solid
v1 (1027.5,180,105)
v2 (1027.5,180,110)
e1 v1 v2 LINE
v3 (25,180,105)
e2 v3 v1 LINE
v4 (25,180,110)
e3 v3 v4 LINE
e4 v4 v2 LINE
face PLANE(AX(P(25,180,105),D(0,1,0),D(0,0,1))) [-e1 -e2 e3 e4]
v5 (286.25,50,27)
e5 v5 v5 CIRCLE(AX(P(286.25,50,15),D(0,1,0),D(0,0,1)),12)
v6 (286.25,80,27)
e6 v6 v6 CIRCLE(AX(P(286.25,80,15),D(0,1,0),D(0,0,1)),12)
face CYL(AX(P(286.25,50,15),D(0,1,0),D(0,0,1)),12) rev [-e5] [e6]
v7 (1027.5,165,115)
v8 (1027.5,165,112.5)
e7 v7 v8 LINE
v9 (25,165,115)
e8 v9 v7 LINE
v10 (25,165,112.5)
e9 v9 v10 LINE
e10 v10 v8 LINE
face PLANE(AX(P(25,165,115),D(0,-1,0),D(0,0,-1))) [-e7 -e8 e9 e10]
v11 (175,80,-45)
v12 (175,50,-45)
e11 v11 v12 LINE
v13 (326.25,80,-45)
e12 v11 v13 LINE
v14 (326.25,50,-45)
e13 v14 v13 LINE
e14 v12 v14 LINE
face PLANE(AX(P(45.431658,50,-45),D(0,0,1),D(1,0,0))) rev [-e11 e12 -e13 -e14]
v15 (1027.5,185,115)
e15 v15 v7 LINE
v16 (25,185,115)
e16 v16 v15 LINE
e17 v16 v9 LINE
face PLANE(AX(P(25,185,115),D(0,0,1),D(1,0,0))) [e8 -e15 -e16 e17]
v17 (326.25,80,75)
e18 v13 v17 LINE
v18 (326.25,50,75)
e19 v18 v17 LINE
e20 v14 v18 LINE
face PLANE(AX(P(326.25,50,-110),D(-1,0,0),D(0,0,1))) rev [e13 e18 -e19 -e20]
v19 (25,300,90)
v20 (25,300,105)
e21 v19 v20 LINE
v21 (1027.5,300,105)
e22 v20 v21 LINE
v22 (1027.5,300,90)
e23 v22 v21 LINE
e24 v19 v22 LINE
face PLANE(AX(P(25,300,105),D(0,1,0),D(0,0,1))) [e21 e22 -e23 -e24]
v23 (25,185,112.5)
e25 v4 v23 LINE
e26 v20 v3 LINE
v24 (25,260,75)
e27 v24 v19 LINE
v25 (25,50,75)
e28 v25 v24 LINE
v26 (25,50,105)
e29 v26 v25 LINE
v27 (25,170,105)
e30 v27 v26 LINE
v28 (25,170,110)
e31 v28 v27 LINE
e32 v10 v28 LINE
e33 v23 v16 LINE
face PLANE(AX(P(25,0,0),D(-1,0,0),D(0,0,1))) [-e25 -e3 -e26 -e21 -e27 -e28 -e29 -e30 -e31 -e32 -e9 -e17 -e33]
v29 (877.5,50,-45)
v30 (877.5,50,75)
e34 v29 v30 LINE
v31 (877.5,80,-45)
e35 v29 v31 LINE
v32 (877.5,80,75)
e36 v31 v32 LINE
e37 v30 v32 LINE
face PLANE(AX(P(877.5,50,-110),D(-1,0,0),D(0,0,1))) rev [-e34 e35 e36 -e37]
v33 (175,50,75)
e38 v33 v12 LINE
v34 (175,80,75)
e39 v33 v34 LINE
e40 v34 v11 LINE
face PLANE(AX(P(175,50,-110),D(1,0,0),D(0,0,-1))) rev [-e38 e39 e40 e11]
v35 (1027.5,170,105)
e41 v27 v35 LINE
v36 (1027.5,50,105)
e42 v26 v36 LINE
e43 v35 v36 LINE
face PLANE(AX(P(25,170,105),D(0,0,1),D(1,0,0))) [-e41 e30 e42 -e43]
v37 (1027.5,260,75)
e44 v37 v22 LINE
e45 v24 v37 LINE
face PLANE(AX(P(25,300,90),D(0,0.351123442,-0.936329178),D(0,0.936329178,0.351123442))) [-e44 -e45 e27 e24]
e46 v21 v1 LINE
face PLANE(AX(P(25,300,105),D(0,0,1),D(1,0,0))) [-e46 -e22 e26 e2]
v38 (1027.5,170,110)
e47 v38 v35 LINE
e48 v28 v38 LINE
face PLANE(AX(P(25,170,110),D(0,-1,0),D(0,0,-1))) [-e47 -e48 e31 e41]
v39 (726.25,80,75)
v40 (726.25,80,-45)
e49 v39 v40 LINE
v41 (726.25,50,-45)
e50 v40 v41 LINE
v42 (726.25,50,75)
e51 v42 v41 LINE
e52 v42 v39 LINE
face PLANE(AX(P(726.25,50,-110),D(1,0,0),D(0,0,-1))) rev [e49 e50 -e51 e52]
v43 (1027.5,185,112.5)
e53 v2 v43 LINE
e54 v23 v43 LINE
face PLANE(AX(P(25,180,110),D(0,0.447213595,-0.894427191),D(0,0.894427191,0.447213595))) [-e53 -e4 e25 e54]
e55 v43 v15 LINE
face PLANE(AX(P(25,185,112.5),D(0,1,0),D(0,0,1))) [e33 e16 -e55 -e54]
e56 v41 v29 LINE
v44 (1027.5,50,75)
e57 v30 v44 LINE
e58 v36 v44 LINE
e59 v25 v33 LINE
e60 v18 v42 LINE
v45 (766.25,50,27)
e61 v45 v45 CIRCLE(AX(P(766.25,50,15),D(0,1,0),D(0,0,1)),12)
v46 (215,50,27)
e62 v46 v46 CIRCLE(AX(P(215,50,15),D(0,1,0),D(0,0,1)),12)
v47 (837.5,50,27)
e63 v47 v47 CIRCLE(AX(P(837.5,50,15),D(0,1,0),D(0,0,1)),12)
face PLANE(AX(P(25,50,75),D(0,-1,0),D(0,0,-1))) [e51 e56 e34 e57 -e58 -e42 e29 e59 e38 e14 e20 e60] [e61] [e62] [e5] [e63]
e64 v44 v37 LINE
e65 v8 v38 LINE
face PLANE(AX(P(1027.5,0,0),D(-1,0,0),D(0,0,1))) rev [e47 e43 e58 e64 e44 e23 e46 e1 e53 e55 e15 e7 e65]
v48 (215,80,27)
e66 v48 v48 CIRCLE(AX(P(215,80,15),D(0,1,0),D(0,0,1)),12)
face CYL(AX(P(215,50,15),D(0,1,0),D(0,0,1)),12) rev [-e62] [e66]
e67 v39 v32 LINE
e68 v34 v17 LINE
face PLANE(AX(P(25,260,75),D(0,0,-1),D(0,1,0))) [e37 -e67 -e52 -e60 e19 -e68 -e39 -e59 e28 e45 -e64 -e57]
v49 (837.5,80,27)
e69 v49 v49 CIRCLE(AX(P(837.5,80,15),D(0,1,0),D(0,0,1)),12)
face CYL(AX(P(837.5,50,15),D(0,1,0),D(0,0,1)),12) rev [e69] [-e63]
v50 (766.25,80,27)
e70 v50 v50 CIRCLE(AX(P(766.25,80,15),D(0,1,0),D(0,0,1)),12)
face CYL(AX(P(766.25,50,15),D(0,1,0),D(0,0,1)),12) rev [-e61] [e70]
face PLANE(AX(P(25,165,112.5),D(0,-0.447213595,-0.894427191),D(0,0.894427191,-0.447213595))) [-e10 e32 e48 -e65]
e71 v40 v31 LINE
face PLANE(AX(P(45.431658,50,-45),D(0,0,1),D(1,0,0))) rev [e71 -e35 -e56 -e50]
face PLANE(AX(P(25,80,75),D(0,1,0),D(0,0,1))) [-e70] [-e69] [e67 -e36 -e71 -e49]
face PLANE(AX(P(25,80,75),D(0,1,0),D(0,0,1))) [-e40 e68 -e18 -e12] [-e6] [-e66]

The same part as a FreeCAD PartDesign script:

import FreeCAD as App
import Part
import Sketcher


def add_polygon(sketch, points):
    """Adds a closed chain of lines whose ends are joined by coincident constraints."""
    first, n = sketch.GeometryCount, len(points)
    for a, b in zip(points, points[1:] + points[:1]):
        sketch.addGeometry(Part.LineSegment(App.Vector(*a, 0), App.Vector(*b, 0)), False)
    for i in range(n):
        sketch.addConstraint(Sketcher.Constraint("Coincident", first + i, 2, first + (i + 1) % n, 1))

doc = App.newDocument("Part")
body = doc.addObject("PartDesign::Body", "Body")

sketch1 = body.newObject("Sketcher::SketchObject", "Sketch")
sketch1.AttachmentSupport = (doc.getObject("YZ_Plane"), [""])
sketch1.MapMode = "FlatFace"
sketch1.AttachmentOffset = App.Placement(App.Vector(0, 0, 1027.5), App.Rotation())
add_polygon(sketch1, [(300, 105), (180, 105), (180, 110), (185, 112.5), (185, 115), (165, 115), (165, 112.5), (170, 110), (170, 105), (50, 105), (50, -110), (80, -110), (80, 75), (260, 75), (300, 90)])
sketch1.addConstraint([
    Sketcher.Constraint("Horizontal", 0),
    Sketcher.Constraint("Vertical", 1),
    Sketcher.Constraint("Vertical", 3),
    Sketcher.Constraint("Horizontal", 4),
    Sketcher.Constraint("Vertical", 5),
    Sketcher.Constraint("Vertical", 7),
    Sketcher.Constraint("Horizontal", 8),
    Sketcher.Constraint("Vertical", 9),
    Sketcher.Constraint("Horizontal", 10),
    Sketcher.Constraint("Vertical", 11),
    Sketcher.Constraint("Horizontal", 12),
    Sketcher.Constraint("Vertical", 14),
    Sketcher.Constraint("Horizontal", 2, 2, 5, 2),
    Sketcher.Constraint("Horizontal", 1, 2, 6, 2),
    Sketcher.Constraint("Horizontal", 0, 2, 7, 2),
    Sketcher.Constraint("Equal", 0, 8),
    Sketcher.Constraint("Equal", 2, 6),
    Sketcher.Constraint("DistanceX", 0, 2, 0, 1, 120.0),
    Sketcher.Constraint("DistanceX", 4, 2, 4, 1, 20.0),
    Sketcher.Constraint("DistanceX", 10, 1, 10, 2, 30.0),
    Sketcher.Constraint("DistanceX", 12, 1, 12, 2, 180.0),
    Sketcher.Constraint("DistanceY", 1, 1, 1, 2, 5.0),
    Sketcher.Constraint("DistanceY", 9, 2, 9, 1, 215.0),
    Sketcher.Constraint("DistanceY", 11, 1, 11, 2, 185.0),
    Sketcher.Constraint("DistanceY", 14, 1, 14, 2, 15.0),
    Sketcher.Constraint("DistanceY", 3, 1, 3, 2, 2.5),
    Sketcher.Constraint("DistanceX", -1, 1, 0, 2, 180.0),
    Sketcher.Constraint("DistanceY", -1, 1, 0, 2, 105.0),
    Sketcher.Constraint("DistanceX", -1, 1, 2, 2, 185.0),
    Sketcher.Constraint("DistanceY", -1, 1, 3, 2, 115.0),
])
pad1 = body.newObject("PartDesign::Pad", "Pad")
pad1.Profile = sketch1
pad1.Length = 1002.5
pad1.Reversed = True

sketch2 = body.newObject("Sketcher::SketchObject", "Sketch001")
sketch2.AttachmentSupport = (doc.getObject("XZ_Plane"), [""])
sketch2.MapMode = "FlatFace"
sketch2.AttachmentOffset = App.Placement(App.Vector(0, 0, -80), App.Rotation())
add_polygon(sketch2, [(326.25, -110), (326.25, 75), (726.25, 75), (726.25, -110)])
sketch2.addConstraint([
    Sketcher.Constraint("Vertical", 0),
    Sketcher.Constraint("Horizontal", 1),
    Sketcher.Constraint("Vertical", 2),
    Sketcher.Constraint("Horizontal", 3),
    Sketcher.Constraint("DistanceX", 1, 1, 1, 2, 400.0),
    Sketcher.Constraint("DistanceY", 0, 1, 0, 2, 185.0),
    Sketcher.Constraint("DistanceY", -1, 1, 0, 2, 75.0),
    Sketcher.Constraint("DistanceX", -1, 1, 0, 2, 326.25),
])
pocket1 = body.newObject("PartDesign::Pocket", "Pocket")
pocket1.Profile = sketch2
pocket1.Type = "ThroughAll"
pocket1.Midplane = True

sketch3 = body.newObject("Sketcher::SketchObject", "Sketch002")
sketch3.AttachmentSupport = (doc.getObject("XZ_Plane"), [""])
sketch3.MapMode = "FlatFace"
sketch3.AttachmentOffset = App.Placement(App.Vector(0, 0, -80), App.Rotation())
add_polygon(sketch3, [(25, -110), (25, 75), (175, 75), (175, -110)])
add_polygon(sketch3, [(877.5, -110), (877.5, 75), (1027.5, 75), (1027.5, -110)])
sketch3.addConstraint([
    Sketcher.Constraint("Vertical", 0),
    Sketcher.Constraint("Horizontal", 1),
    Sketcher.Constraint("Vertical", 2),
    Sketcher.Constraint("Horizontal", 3),
    Sketcher.Constraint("Vertical", 4),
    Sketcher.Constraint("Horizontal", 5),
    Sketcher.Constraint("Vertical", 6),
    Sketcher.Constraint("Horizontal", 7),
    Sketcher.Constraint("Horizontal", 1, 2, 4, 2),
    Sketcher.Constraint("Horizontal", 3, 2, 6, 2),
    Sketcher.Constraint("Equal", 3, 5),
    Sketcher.Constraint("DistanceX", 1, 1, 1, 2, 150.0),
    Sketcher.Constraint("DistanceY", 0, 1, 0, 2, 185.0),
    Sketcher.Constraint("DistanceX", -1, 1, 0, 2, 25.0),
    Sketcher.Constraint("DistanceY", -1, 1, 0, 2, 75.0),
    Sketcher.Constraint("DistanceX", -1, 1, 4, 2, 877.5),
])
pocket2 = body.newObject("PartDesign::Pocket", "Pocket001")
pocket2.Profile = sketch3
pocket2.Type = "ThroughAll"
pocket2.Midplane = True

sketch4 = body.newObject("Sketcher::SketchObject", "Sketch003")
sketch4.AttachmentSupport = (doc.getObject("XZ_Plane"), [""])
sketch4.MapMode = "FlatFace"
sketch4.AttachmentOffset = App.Placement(App.Vector(0, 0, -80), App.Rotation())
add_polygon(sketch4, [(45.431658, -225.779532), (45.431658, -45), (976.887174, -45), (976.887174, -225.779532)])
sketch4.addConstraint([
    Sketcher.Constraint("Vertical", 0),
    Sketcher.Constraint("Horizontal", 1),
    Sketcher.Constraint("Vertical", 2),
    Sketcher.Constraint("Horizontal", 3),
    Sketcher.Constraint("DistanceY", 0, 2, -1, 1, 45.0),
    Sketcher.Constraint("DistanceX", 1, 1, 1, 2, 931.455516),
    Sketcher.Constraint("DistanceY", 0, 1, 0, 2, 180.779532),
    Sketcher.Constraint("DistanceX", -1, 1, 0, 2, 45.431658),
])
pocket3 = body.newObject("PartDesign::Pocket", "Pocket002")
pocket3.Profile = sketch4
pocket3.Type = "ThroughAll"
pocket3.Midplane = True

sketch5 = body.newObject("Sketcher::SketchObject", "Sketch004")
sketch5.AttachmentSupport = (doc.getObject("XZ_Plane"), [""])
sketch5.MapMode = "FlatFace"
sketch5.AttachmentOffset = App.Placement(App.Vector(0, 0, -80), App.Rotation())
sketch5.addGeometry([
    Part.Circle(App.Vector(215, 15, 0), App.Vector(0, 0, 1), 12),
    Part.Circle(App.Vector(286.25, 15, 0), App.Vector(0, 0, 1), 12),
    Part.Circle(App.Vector(766.25, 15, 0), App.Vector(0, 0, 1), 12),
    Part.Circle(App.Vector(837.5, 15, 0), App.Vector(0, 0, 1), 12),
], False)
sketch5.addConstraint([
    Sketcher.Constraint("Equal", 0, 1),
    Sketcher.Constraint("Equal", 1, 2),
    Sketcher.Constraint("Equal", 2, 3),
    Sketcher.Constraint("Horizontal", 0, 3, 1, 3),
    Sketcher.Constraint("Horizontal", 1, 3, 2, 3),
    Sketcher.Constraint("Horizontal", 2, 3, 3, 3),
    Sketcher.Constraint("Diameter", 0, 24.0),
    Sketcher.Constraint("DistanceX", -1, 1, 0, 3, 215.0),
    Sketcher.Constraint("DistanceY", -1, 1, 0, 3, 15.0),
    Sketcher.Constraint("DistanceX", 1, 3, 2, 3, 480.0),
    Sketcher.Constraint("DistanceX", -1, 1, 3, 3, 837.5),
    Sketcher.Constraint("DistanceX", -1, 1, 1, 3, 286.25),
])
pocket4 = body.newObject("PartDesign::Pocket", "Pocket003")
pocket4.Profile = sketch5
pocket4.Type = "ThroughAll"
pocket4.Midplane = True

doc.recompute()
